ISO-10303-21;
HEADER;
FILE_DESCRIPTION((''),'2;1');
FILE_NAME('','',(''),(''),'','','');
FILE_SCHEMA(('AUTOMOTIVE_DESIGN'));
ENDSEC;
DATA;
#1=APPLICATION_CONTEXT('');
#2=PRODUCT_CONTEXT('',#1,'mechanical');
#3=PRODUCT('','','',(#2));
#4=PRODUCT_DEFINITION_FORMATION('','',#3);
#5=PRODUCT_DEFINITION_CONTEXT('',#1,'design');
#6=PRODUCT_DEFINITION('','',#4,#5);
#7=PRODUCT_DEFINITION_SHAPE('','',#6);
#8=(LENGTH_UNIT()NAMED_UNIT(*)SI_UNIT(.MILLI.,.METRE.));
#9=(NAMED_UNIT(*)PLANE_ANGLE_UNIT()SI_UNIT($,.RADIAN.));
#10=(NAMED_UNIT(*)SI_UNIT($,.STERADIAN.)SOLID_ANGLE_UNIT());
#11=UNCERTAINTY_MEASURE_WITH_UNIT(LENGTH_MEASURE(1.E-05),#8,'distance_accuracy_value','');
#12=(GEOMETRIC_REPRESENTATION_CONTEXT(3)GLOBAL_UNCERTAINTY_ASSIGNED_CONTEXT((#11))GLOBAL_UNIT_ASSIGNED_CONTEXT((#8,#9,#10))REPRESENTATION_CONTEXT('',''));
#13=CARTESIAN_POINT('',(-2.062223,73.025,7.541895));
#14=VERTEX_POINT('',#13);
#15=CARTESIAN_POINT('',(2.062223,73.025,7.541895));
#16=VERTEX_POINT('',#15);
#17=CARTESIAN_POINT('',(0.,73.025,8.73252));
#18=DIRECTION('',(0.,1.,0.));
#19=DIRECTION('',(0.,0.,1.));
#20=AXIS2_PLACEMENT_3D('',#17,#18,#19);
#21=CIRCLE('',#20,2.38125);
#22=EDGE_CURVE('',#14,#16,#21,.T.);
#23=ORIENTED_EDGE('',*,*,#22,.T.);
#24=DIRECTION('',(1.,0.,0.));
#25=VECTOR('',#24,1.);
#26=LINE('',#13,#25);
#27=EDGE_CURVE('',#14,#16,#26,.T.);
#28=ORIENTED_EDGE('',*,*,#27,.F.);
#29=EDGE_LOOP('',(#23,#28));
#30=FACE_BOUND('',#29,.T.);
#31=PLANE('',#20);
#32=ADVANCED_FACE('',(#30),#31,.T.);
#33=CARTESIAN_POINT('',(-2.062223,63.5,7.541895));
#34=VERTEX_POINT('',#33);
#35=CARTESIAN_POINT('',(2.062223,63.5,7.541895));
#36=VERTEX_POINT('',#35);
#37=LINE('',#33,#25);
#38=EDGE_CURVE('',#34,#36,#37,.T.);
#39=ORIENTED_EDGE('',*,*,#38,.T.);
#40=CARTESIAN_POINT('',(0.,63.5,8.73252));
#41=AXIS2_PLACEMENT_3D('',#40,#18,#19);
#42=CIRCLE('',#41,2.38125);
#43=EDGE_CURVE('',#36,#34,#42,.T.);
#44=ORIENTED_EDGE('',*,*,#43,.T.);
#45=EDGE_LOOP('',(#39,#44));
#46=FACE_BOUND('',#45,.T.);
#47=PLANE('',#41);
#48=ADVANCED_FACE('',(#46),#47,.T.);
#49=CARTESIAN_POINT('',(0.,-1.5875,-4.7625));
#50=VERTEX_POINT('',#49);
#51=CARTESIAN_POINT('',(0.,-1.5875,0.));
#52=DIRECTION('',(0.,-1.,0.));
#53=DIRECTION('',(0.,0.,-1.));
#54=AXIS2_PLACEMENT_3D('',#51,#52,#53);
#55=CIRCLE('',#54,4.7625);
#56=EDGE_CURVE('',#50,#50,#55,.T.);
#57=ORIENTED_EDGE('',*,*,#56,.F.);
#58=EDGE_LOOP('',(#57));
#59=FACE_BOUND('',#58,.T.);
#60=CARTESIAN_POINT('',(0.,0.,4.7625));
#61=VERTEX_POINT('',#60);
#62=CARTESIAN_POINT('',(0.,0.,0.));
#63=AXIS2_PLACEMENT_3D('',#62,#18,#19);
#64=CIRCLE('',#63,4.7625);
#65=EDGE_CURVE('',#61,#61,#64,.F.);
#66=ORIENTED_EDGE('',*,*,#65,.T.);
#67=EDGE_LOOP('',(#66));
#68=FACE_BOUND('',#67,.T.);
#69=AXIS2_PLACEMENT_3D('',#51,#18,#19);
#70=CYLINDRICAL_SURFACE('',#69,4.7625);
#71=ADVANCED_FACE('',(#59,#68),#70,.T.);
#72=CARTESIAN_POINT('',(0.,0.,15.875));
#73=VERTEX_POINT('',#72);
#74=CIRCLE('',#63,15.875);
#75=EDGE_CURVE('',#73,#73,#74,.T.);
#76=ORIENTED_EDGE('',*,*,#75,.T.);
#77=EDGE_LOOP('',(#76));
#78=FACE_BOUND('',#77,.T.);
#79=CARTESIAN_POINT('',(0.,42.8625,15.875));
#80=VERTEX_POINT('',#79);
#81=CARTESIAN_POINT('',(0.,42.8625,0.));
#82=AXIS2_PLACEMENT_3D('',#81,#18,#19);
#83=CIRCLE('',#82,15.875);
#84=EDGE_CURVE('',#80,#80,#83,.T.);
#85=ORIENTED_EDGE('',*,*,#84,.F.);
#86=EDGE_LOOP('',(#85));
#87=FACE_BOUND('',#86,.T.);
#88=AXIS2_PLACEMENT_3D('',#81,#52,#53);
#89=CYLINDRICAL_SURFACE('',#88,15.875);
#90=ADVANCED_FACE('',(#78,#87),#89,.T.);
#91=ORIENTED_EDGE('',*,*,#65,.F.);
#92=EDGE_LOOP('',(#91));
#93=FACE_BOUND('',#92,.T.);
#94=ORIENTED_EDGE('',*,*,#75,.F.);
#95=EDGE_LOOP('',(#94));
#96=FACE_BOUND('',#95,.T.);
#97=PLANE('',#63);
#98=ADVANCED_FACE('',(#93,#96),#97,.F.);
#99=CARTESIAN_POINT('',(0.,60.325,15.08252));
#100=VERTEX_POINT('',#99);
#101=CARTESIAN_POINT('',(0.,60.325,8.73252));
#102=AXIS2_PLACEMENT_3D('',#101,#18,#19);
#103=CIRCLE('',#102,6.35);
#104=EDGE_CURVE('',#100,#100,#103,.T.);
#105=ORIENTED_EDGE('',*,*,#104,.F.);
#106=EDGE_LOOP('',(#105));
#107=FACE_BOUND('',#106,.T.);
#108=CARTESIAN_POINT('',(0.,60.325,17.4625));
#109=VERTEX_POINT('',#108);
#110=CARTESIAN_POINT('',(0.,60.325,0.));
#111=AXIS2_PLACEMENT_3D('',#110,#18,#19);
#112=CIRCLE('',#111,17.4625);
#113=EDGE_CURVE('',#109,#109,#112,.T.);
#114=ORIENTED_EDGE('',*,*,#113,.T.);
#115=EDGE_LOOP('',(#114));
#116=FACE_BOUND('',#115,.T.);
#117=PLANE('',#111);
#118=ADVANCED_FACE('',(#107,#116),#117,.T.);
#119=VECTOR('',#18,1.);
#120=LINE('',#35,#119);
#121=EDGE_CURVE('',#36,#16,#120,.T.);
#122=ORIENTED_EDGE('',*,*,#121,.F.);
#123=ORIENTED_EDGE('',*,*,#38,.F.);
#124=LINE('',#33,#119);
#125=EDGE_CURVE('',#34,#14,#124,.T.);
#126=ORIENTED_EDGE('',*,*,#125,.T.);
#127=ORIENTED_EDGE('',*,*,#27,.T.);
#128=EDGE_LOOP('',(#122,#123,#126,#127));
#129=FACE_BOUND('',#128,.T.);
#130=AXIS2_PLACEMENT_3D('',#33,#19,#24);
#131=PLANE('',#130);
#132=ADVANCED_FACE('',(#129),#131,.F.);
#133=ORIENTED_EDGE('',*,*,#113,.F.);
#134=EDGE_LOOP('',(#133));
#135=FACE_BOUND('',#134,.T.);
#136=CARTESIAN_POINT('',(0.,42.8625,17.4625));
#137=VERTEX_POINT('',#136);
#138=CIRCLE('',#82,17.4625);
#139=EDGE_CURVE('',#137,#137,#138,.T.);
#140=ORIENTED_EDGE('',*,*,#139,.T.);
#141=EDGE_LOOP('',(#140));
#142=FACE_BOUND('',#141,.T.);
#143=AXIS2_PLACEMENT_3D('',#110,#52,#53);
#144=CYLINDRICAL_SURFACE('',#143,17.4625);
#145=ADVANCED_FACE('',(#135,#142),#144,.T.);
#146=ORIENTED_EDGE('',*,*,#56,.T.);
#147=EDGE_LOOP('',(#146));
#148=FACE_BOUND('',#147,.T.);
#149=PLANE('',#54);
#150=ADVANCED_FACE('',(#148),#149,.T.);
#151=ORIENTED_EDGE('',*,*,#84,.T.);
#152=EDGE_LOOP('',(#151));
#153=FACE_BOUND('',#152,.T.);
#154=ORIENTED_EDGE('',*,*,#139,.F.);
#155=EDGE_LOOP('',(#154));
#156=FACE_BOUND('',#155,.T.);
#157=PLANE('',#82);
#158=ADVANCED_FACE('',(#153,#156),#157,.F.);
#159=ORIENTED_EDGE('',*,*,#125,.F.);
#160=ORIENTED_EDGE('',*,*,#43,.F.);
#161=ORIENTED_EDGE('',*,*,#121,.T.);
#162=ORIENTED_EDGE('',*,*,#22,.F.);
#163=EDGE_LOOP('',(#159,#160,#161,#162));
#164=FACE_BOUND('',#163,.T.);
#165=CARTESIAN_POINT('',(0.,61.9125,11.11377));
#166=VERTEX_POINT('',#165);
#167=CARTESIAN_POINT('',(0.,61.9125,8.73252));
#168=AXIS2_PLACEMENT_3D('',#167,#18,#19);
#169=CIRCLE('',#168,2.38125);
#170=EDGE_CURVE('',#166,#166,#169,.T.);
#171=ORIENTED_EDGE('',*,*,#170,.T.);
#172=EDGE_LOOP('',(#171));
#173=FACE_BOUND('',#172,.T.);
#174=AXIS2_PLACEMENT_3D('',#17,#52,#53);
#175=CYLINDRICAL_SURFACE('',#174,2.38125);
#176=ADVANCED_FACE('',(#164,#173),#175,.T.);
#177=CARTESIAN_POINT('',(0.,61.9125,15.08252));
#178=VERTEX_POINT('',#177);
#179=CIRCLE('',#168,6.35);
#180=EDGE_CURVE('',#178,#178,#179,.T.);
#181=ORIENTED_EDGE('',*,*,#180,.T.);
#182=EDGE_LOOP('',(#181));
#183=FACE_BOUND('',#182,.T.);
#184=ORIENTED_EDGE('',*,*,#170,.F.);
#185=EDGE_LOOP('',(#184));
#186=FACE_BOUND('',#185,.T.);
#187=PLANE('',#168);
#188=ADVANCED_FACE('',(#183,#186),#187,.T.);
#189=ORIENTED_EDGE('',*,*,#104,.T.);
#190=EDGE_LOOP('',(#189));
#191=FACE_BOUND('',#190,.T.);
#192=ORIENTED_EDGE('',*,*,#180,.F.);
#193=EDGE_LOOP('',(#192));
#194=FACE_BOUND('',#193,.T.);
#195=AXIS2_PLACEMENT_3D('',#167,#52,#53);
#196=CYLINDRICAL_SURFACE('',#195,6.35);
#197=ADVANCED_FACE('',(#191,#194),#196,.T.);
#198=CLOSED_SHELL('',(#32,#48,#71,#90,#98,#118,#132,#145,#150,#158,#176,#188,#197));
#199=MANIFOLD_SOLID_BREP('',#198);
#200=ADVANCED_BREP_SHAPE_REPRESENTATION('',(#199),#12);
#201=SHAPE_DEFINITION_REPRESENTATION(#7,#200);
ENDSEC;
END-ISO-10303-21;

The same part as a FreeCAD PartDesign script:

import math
import FreeCAD as App
import Part
import Sketcher

V = App.Vector
Q = App.Units.Quantity

doc = App.newDocument("Part")
params = doc.addObject("Spreadsheet::Sheet", "Params")
for row, (alias, value) in enumerate([
    ("sketch1_diameter", "1.25 in"),
    ("pad1_length", "1.6875 in"),
    ("sketch2_diameter", "1.375 in"),
    ("pad2_length", "0.6875 in"),
    ("sketch3_diameter", "0.5 in"),
    ("pad3_length", "0.0625 in"),
    ("sketch4_diameter", "0.1875 in"),
    ("pad4_length", "0.4375 in"),
    ("sketch5_radius", "0.09375 in"),
    ("pocket1_length", "0.375 in"),
    ("sketch6_diameter", "0.375 in"),
    ("pad5_length", "0.0625 in"),
], start=1):
    params.set(f"A{row}", alias)
    params.set(f"B{row}", "=" + value)
    params.setAlias(f"B{row}", alias)

body = doc.addObject("PartDesign::Body", "Body")

sketch1 = body.newObject("Sketcher::SketchObject", "Sketch")
sketch1.AttachmentSupport = (doc.getObject("XZ_Plane"), [""])
sketch1.MapMode = "FlatFace"
sketch1.addGeometry(Part.Circle(V(0, 0, 0), V(0, 0, 1), 16), False)
sketch1.addConstraint([
    Sketcher.Constraint("Coincident", 0, 3, -1, 1),
    Sketcher.Constraint("Diameter", 0, Q("1.25 in")),
])
sketch1.setExpression("Constraints[1]", "Params.sketch1_diameter")
pad1 = body.newObject("PartDesign::Pad", "Pad")
pad1.Profile = sketch1
pad1.setExpression("Length", "Params.pad1_length")
pad1.Reversed = True

sketch2 = body.newObject("Sketcher::SketchObject", "Sketch001")
sketch2.AttachmentSupport = (doc.getObject("XZ_Plane"), [""])
sketch2.MapMode = "FlatFace"
sketch2.AttachmentOffset = App.Placement(V(0, 0, -1.6875 * 25.4), App.Rotation())
sketch2.addGeometry(Part.Circle(V(0, 0, 0), V(0, 0, 1), 17), False)
sketch2.addConstraint([
    Sketcher.Constraint("Coincident", 0, 3, -1, 1),
    Sketcher.Constraint("Diameter", 0, Q("1.375 in")),
])
sketch2.setExpression("Constraints[1]", "Params.sketch2_diameter")
pad2 = body.newObject("PartDesign::Pad", "Pad001")
pad2.Profile = sketch2
pad2.setExpression("Length", "Params.pad2_length")
pad2.Reversed = True

sketch3 = body.newObject("Sketcher::SketchObject", "Sketch002")
sketch3.AttachmentSupport = (doc.getObject("XZ_Plane"), [""])
sketch3.MapMode = "FlatFace"
sketch3.AttachmentOffset = App.Placement(V(0, 0, -2.375 * 25.4), App.Rotation())
sketch3.addGeometry(Part.Circle(V(0, 9, 0), V(0, 0, 1), 6), False)
sketch3.addConstraint([
    Sketcher.Constraint("PointOnObject", 0, 3, -2),
    Sketcher.Constraint("Diameter", 0, Q("0.5 in")),
    Sketcher.Constraint("DistanceY", -1, 1, 0, 3, Q("0.3438 in")),
])
sketch3.setExpression("Constraints[1]", "Params.sketch3_diameter")
pad3 = body.newObject("PartDesign::Pad", "Pad002")
pad3.Profile = sketch3
pad3.setExpression("Length", "Params.pad3_length")
pad3.Reversed = True

sketch4 = body.newObject("Sketcher::SketchObject", "Sketch003")
sketch4.AttachmentSupport = (doc.getObject("XZ_Plane"), [""])
sketch4.MapMode = "FlatFace"
sketch4.AttachmentOffset = App.Placement(V(0, 0, -2.4375 * 25.4), App.Rotation())
sketch4.addGeometry(Part.Circle(V(0, 8.7, 0), V(0, 0, 1), 2.4), False)
sketch4.addConstraint([
    Sketcher.Constraint("PointOnObject", 0, 3, -2),
    Sketcher.Constraint("Diameter", 0, Q("0.1875 in")),
    Sketcher.Constraint("DistanceY", -1, 1, 0, 3, Q("0.3438 in")),
])
sketch4.setExpression("Constraints[1]", "Params.sketch4_diameter")
pad4 = body.newObject("PartDesign::Pad", "Pad003")
pad4.Profile = sketch4
pad4.setExpression("Length", "Params.pad4_length")
pad4.Reversed = True

sketch5 = body.newObject("Sketcher::SketchObject", "Sketch004")
sketch5.AttachmentSupport = (doc.getObject("XZ_Plane"), [""])
sketch5.MapMode = "FlatFace"
sketch5.AttachmentOffset = App.Placement(V(0, 0, -2.5 * 25.4), App.Rotation())
sketch5.addGeometry([
    Part.LineSegment(V(-2.1, 7.5, 0), V(2.1, 7.5, 0)),
    Part.ArcOfCircle(Part.Circle(V(0, 8.7, 0), V(0, 0, 1), 2.4), math.radians(-150), math.radians(-30)),
], False)
sketch5.addConstraint([
    Sketcher.Constraint("Coincident", 0, 1, 1, 1),
    Sketcher.Constraint("Coincident", 1, 2, 0, 2),
    Sketcher.Constraint("Horizontal", 0),
    Sketcher.Constraint("PointOnObject", 1, 3, -2),
    Sketcher.Constraint("Radius", 1, Q("0.09375 in")),
    Sketcher.Constraint("DistanceY", 0, 1, 1, 3, Q("0.046875 in")),
    Sketcher.Constraint("DistanceY", -1, 1, 1, 3, Q("0.3438 in")),
])
sketch5.setExpression("Constraints[4]", "Params.sketch5_radius")
pocket1 = body.newObject("PartDesign::Pocket", "Pocket")
pocket1.Profile = sketch5
pocket1.setExpression("Length", "Params.pocket1_length")

sketch6 = body.newObject("Sketcher::SketchObject", "Sketch005")
sketch6.AttachmentSupport = (doc.getObject("XZ_Plane"), [""])
sketch6.MapMode = "FlatFace"
sketch6.addGeometry(Part.Circle(V(0, 0, 0), V(0, 0, 1), 4.8), False)
sketch6.addConstraint([
    Sketcher.Constraint("Coincident", 0, 3, -1, 1),
    Sketcher.Constraint("Diameter", 0, Q("0.375 in")),
])
sketch6.setExpression("Constraints[1]", "Params.sketch6_diameter")
pad5 = body.newObject("PartDesign::Pad", "Pad004")
pad5.Profile = sketch6
pad5.setExpression("Length", "Params.pad5_length")

doc.recompute()
